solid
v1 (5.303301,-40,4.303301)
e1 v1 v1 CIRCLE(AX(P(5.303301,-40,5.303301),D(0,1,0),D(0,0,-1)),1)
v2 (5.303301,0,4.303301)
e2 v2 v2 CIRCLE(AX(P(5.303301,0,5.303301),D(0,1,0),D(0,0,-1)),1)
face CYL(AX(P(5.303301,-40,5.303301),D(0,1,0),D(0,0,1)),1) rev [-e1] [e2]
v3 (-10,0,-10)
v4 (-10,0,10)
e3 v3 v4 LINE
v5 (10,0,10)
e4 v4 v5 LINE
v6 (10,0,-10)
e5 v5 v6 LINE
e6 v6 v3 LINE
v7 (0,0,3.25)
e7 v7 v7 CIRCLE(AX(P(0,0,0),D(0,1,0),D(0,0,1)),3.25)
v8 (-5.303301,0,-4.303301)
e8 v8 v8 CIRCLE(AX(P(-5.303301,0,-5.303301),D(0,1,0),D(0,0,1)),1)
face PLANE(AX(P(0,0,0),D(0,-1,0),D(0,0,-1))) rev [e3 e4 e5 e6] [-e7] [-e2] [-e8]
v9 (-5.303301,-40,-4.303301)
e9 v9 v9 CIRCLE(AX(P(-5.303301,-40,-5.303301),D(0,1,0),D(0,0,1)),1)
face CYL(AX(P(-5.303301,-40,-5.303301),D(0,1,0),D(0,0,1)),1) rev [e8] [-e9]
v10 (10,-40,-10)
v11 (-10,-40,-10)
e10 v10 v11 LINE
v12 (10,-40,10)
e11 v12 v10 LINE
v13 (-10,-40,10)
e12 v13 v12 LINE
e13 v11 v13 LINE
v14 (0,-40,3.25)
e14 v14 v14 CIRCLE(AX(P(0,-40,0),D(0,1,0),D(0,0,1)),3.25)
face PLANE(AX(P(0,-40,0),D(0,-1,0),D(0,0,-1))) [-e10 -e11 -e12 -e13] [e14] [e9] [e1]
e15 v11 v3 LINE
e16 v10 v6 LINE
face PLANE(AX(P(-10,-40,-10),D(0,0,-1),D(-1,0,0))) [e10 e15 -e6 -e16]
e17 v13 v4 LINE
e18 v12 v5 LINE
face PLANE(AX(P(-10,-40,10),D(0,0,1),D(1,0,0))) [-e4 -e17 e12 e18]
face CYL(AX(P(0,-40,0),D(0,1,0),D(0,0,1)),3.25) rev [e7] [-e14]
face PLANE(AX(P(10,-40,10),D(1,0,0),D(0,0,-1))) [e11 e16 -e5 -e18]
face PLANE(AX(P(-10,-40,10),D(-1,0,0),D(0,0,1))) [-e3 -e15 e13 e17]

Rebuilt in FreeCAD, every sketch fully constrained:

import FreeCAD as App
import Part
import Sketcher

V = App.Vector

doc = App.newDocument("Part")
body = doc.addObject("PartDesign::Body", "Body")

# Sketch on XZ plane
sketch1 = body.newObject("Sketcher::SketchObject", "Sketch")
sketch1.AttachmentSupport = (doc.getObject("XZ_Plane"), [""])
sketch1.MapMode = "FlatFace"
sketch1.addGeometry([
    Part.LineSegment(V(-10, -10, 0), V(-10, 10, 0)),  # 0
    Part.LineSegment(V(-10, 10, 0), V(10, 10, 0)),  # 1
    Part.LineSegment(V(10, 10, 0), V(10, -10, 0)),  # 2
    Part.LineSegment(V(10, -10, 0), V(-10, -10, 0)),  # 3
    Part.Circle(V(5.3, 5.3, 0), V(0, 0, 1), 1),  # 4
    Part.Circle(V(-5.3, -5.3, 0), V(0, 0, 1), 1),  # 5
    Part.Circle(V(0, 0, 0), V(0, 0, 1), 3.2),  # 6
], False)
sketch1.addConstraint([
    Sketcher.Constraint("Coincident", 0, 2, 1, 1),
    Sketcher.Constraint("Coincident", 1, 2, 2, 1),
    Sketcher.Constraint("Coincident", 2, 2, 3, 1),
    Sketcher.Constraint("Coincident", 3, 2, 0, 1),
    Sketcher.Constraint("Vertical", 0),
    Sketcher.Constraint("Horizontal", 1),
    Sketcher.Constraint("Vertical", 2),
    Sketcher.Constraint("Horizontal", 3),
    Sketcher.Constraint("Coincident", 6, 3, -1, 1),
    Sketcher.Constraint("Equal", 4, 5),
    Sketcher.Constraint("Symmetric", 4, 3, 5, 3, -1, 1),
    Sketcher.Constraint("Symmetric", 0, 2, 2, 2, -1, 1),
    Sketcher.Constraint("Equal", 3, 0),
    Sketcher.Constraint("Diameter", 4, 2.0),
    Sketcher.Constraint("Diameter", 6, 6.5),
    Sketcher.Constraint("DistanceX", 1, 1, 1, 2, 20.0),
    Sketcher.Constraint("DistanceX", -1, 1, 4, 3, 5.303301),
    Sketcher.Constraint("DistanceY", -1, 1, 4, 3, 5.303301),
])
pad1 = body.newObject("PartDesign::Pad", "Pad")
pad1.Profile = sketch1
pad1.Length = 40

doc.recompute()
